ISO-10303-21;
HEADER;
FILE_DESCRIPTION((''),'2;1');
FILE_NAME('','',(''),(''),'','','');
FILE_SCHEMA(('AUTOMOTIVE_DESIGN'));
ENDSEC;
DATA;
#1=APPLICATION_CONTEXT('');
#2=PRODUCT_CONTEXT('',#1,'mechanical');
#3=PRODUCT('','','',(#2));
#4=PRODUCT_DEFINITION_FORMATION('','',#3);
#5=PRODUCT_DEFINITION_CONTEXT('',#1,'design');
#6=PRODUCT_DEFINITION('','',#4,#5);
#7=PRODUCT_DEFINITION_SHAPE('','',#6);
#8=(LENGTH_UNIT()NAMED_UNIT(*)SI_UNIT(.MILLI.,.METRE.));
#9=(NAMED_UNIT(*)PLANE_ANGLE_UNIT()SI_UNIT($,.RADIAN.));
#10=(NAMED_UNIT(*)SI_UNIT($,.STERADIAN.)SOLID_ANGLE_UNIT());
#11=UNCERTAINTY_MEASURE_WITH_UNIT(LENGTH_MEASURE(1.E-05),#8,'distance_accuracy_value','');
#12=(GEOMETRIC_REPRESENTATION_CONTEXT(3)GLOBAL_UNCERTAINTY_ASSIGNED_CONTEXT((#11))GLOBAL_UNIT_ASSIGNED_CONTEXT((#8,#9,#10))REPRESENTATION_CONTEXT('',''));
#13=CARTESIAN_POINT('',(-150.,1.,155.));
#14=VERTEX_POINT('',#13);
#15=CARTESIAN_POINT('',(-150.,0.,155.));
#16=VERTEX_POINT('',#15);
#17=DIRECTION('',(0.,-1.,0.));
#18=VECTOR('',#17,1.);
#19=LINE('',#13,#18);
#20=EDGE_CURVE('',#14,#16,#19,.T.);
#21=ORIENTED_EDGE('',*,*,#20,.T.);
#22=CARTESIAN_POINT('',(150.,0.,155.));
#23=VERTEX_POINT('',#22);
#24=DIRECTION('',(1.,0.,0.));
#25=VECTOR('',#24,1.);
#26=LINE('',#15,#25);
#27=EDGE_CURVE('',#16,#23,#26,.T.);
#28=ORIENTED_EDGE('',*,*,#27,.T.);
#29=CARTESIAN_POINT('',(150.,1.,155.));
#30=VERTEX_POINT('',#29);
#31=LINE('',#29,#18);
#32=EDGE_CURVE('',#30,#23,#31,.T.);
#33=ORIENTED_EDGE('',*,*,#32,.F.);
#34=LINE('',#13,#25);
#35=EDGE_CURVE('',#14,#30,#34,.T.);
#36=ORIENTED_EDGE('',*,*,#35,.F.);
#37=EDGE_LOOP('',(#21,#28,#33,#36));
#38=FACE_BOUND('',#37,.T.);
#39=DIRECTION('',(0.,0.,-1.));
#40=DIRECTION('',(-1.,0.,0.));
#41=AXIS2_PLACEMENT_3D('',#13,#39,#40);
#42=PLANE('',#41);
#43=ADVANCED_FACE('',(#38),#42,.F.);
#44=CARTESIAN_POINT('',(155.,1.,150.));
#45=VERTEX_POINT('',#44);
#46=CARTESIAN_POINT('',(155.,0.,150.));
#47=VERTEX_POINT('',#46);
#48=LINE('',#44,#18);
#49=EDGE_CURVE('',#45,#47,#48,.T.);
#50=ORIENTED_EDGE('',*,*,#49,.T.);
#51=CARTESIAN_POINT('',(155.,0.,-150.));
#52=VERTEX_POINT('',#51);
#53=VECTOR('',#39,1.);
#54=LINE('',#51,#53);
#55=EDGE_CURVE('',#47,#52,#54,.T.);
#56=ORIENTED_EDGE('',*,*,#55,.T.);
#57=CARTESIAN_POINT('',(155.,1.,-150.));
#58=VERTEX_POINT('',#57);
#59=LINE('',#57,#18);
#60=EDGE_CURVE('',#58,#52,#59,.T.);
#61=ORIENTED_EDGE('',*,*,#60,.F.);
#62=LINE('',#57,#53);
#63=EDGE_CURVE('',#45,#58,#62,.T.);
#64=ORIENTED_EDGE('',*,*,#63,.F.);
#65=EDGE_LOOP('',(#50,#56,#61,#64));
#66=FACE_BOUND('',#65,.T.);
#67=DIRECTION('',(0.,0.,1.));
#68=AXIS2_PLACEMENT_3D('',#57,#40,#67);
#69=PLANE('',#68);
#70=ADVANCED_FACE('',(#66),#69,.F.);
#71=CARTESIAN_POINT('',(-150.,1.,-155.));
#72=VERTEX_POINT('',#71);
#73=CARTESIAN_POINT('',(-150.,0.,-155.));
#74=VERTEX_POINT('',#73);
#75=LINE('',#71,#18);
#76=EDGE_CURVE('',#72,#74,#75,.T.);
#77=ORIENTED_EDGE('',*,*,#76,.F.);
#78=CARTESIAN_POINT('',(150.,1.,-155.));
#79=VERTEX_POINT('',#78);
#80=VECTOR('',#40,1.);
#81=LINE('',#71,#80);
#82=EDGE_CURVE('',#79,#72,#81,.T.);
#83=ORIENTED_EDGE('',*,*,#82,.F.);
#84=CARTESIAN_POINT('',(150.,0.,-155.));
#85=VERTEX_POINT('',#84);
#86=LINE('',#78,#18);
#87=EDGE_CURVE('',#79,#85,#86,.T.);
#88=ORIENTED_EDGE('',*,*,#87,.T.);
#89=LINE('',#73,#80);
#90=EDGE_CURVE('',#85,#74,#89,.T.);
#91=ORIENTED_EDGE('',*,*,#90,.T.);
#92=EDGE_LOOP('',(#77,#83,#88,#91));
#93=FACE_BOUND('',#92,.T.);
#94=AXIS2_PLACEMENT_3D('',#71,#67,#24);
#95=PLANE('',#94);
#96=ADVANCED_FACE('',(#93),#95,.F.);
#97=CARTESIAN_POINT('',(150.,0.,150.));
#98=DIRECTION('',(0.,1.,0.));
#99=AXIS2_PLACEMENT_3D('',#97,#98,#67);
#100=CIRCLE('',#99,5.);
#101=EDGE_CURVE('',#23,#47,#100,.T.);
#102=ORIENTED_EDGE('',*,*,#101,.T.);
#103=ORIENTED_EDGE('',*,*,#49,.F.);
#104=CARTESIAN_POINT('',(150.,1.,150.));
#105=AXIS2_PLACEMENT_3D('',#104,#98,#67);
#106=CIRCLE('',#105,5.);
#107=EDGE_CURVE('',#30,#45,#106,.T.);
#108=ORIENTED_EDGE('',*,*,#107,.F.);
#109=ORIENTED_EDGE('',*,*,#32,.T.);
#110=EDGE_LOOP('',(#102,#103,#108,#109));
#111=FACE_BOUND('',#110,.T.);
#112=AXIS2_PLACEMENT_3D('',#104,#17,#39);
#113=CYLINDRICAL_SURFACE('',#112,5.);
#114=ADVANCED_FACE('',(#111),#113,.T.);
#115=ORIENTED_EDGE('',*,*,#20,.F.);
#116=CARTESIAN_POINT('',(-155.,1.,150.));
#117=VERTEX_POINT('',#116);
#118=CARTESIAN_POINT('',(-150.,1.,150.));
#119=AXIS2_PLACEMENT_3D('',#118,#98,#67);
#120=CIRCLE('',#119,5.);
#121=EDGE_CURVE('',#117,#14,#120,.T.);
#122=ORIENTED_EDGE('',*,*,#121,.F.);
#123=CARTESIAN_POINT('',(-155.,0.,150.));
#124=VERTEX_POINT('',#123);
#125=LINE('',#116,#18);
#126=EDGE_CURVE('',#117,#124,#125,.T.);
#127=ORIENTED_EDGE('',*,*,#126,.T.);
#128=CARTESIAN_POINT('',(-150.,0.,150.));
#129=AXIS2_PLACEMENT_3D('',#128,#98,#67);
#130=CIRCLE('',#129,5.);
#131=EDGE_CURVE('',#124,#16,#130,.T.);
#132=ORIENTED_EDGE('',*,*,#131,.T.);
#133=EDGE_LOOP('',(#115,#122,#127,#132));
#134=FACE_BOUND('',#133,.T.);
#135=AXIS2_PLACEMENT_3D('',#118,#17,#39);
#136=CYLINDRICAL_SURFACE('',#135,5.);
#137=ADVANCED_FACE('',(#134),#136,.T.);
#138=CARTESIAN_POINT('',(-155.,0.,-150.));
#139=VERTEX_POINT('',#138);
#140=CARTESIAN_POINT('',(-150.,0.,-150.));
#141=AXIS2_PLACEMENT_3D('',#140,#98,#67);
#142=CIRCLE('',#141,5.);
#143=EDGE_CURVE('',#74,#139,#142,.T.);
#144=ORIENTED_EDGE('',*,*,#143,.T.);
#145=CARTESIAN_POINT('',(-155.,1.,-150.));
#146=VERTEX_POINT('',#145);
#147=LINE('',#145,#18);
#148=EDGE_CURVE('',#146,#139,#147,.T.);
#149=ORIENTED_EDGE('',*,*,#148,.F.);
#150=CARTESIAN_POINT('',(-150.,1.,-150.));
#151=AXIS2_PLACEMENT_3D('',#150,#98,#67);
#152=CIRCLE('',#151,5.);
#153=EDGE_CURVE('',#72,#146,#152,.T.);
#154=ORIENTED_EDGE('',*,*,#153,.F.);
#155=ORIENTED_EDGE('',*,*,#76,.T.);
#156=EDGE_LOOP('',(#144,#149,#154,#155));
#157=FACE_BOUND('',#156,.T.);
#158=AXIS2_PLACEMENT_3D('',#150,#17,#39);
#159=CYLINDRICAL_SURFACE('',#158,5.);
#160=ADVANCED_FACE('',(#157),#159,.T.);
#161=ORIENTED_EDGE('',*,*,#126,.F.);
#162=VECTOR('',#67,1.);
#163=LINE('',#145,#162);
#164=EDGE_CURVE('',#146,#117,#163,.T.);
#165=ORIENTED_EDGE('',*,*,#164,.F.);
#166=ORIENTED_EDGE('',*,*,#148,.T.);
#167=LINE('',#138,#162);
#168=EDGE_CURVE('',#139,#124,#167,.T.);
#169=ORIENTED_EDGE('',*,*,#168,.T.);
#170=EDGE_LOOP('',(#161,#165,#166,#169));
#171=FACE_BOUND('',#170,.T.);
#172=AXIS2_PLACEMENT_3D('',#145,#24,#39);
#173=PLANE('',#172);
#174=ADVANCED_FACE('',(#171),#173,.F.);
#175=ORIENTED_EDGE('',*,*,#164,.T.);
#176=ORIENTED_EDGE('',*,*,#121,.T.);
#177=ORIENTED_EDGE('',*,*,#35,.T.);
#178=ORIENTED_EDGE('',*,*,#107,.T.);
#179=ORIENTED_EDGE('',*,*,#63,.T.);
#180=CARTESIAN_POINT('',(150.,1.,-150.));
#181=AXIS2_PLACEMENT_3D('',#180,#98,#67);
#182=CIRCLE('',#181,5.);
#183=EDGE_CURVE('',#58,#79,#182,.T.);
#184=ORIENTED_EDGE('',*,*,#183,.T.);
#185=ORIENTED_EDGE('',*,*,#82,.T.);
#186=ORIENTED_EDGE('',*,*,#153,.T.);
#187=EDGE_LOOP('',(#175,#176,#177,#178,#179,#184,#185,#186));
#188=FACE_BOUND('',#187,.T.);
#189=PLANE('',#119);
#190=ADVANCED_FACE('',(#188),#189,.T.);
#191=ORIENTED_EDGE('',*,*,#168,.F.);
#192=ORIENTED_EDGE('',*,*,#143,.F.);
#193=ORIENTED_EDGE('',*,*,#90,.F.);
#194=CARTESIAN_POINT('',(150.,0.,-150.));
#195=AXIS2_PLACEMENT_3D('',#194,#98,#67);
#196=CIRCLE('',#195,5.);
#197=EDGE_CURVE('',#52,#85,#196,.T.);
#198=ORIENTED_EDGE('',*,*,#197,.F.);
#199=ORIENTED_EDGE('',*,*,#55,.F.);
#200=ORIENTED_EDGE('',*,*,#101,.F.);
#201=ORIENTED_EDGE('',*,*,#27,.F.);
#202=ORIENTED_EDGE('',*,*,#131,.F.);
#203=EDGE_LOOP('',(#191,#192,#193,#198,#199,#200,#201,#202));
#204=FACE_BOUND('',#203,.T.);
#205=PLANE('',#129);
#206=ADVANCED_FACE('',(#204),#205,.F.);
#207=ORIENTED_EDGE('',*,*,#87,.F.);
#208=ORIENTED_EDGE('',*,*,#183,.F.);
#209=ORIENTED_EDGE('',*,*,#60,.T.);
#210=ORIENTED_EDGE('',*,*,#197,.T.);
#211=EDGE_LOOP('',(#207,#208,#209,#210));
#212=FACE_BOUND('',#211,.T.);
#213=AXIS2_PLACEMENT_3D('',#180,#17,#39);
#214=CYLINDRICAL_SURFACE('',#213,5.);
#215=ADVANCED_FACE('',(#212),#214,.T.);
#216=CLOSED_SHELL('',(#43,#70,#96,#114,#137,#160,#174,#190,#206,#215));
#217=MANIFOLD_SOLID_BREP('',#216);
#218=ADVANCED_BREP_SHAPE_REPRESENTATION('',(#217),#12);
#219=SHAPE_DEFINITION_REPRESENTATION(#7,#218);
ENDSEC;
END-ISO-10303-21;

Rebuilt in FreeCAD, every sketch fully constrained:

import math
import FreeCAD as App
import Part
import Sketcher

doc = App.newDocument("Part")
params = doc.addObject("Spreadsheet::Sheet", "Params")
for row, (alias, value) in enumerate([
    ("sketch1_radius", "5 mm"),
    ("sketch1_width", "300 mm"),
    ("pad1_length", "1 mm"),
], start=1):
    params.set(f"A{row}", alias)
    params.set(f"B{row}", "=" + value)
    params.setAlias(f"B{row}", alias)

body = doc.addObject("PartDesign::Body", "Body")

sketch1 = doc.addObject("Sketcher::SketchObject", "Sketch")
body.addObject(sketch1)
sketch1.AttachmentSupport = (doc.XZ_Plane, [""])
sketch1.MapMode = "FlatFace"
sketch1.addGeometry([
    Part.LineSegment(App.Vector(150, -155, 0), App.Vector(-150, -155, 0)),
    Part.ArcOfCircle(Part.Circle(App.Vector(-150, -150, 0), App.Vector(0, 0, 1), 5), math.radians(180), math.radians(270)),
    Part.LineSegment(App.Vector(-155, -150, 0), App.Vector(-155, 150, 0)),
    Part.ArcOfCircle(Part.Circle(App.Vector(-150, 150, 0), App.Vector(0, 0, 1), 5), math.radians(90), math.radians(180)),
    Part.LineSegment(App.Vector(-150, 155, 0), App.Vector(150, 155, 0)),
    Part.ArcOfCircle(Part.Circle(App.Vector(150, 150, 0), App.Vector(0, 0, 1), 5), math.radians(0), math.radians(90)),
    Part.LineSegment(App.Vector(155, 150, 0), App.Vector(155, -150, 0)),
    Part.ArcOfCircle(Part.Circle(App.Vector(150, -150, 0), App.Vector(0, 0, 1), 5), math.radians(-90), math.radians(0)),
], False)
sketch1.addConstraint([
    Sketcher.Constraint("Tangent", 0, 2, 1, 2),
    Sketcher.Constraint("Tangent", 1, 1, 2, 1),
    Sketcher.Constraint("Tangent", 2, 2, 3, 2),
    Sketcher.Constraint("Tangent", 3, 1, 4, 1),
    Sketcher.Constraint("Tangent", 4, 2, 5, 2),
    Sketcher.Constraint("Tangent", 5, 1, 6, 1),
    Sketcher.Constraint("Tangent", 6, 2, 7, 2),
    Sketcher.Constraint("Tangent", 7, 1, 0, 1),
    Sketcher.Constraint("Horizontal", 0),
    Sketcher.Constraint("Vertical", 2),
    Sketcher.Constraint("Horizontal", 4),
    Sketcher.Constraint("Vertical", 6),
    Sketcher.Constraint("Equal", 1, 3),
    Sketcher.Constraint("Equal", 3, 5),
    Sketcher.Constraint("Equal", 5, 7),
    Sketcher.Constraint("Symmetric", 1, 3, 5, 3, -1, 1),
    Sketcher.Constraint("Equal", 4, 2),
    Sketcher.Constraint("Radius", 1, 5.0),
    Sketcher.Constraint("DistanceX", 0, 2, 0, 1, 300.0),
])
sketch1.setExpression("Constraints[17]", "Params.sketch1_radius")
sketch1.setExpression("Constraints[18]", "Params.sketch1_width")
pad1 = doc.addObject("PartDesign::Pad", "Pad")
body.addObject(pad1)
pad1.Profile = sketch1
pad1.setExpression("Length", "Params.pad1_length")
pad1.Reversed = True

doc.recompute()
